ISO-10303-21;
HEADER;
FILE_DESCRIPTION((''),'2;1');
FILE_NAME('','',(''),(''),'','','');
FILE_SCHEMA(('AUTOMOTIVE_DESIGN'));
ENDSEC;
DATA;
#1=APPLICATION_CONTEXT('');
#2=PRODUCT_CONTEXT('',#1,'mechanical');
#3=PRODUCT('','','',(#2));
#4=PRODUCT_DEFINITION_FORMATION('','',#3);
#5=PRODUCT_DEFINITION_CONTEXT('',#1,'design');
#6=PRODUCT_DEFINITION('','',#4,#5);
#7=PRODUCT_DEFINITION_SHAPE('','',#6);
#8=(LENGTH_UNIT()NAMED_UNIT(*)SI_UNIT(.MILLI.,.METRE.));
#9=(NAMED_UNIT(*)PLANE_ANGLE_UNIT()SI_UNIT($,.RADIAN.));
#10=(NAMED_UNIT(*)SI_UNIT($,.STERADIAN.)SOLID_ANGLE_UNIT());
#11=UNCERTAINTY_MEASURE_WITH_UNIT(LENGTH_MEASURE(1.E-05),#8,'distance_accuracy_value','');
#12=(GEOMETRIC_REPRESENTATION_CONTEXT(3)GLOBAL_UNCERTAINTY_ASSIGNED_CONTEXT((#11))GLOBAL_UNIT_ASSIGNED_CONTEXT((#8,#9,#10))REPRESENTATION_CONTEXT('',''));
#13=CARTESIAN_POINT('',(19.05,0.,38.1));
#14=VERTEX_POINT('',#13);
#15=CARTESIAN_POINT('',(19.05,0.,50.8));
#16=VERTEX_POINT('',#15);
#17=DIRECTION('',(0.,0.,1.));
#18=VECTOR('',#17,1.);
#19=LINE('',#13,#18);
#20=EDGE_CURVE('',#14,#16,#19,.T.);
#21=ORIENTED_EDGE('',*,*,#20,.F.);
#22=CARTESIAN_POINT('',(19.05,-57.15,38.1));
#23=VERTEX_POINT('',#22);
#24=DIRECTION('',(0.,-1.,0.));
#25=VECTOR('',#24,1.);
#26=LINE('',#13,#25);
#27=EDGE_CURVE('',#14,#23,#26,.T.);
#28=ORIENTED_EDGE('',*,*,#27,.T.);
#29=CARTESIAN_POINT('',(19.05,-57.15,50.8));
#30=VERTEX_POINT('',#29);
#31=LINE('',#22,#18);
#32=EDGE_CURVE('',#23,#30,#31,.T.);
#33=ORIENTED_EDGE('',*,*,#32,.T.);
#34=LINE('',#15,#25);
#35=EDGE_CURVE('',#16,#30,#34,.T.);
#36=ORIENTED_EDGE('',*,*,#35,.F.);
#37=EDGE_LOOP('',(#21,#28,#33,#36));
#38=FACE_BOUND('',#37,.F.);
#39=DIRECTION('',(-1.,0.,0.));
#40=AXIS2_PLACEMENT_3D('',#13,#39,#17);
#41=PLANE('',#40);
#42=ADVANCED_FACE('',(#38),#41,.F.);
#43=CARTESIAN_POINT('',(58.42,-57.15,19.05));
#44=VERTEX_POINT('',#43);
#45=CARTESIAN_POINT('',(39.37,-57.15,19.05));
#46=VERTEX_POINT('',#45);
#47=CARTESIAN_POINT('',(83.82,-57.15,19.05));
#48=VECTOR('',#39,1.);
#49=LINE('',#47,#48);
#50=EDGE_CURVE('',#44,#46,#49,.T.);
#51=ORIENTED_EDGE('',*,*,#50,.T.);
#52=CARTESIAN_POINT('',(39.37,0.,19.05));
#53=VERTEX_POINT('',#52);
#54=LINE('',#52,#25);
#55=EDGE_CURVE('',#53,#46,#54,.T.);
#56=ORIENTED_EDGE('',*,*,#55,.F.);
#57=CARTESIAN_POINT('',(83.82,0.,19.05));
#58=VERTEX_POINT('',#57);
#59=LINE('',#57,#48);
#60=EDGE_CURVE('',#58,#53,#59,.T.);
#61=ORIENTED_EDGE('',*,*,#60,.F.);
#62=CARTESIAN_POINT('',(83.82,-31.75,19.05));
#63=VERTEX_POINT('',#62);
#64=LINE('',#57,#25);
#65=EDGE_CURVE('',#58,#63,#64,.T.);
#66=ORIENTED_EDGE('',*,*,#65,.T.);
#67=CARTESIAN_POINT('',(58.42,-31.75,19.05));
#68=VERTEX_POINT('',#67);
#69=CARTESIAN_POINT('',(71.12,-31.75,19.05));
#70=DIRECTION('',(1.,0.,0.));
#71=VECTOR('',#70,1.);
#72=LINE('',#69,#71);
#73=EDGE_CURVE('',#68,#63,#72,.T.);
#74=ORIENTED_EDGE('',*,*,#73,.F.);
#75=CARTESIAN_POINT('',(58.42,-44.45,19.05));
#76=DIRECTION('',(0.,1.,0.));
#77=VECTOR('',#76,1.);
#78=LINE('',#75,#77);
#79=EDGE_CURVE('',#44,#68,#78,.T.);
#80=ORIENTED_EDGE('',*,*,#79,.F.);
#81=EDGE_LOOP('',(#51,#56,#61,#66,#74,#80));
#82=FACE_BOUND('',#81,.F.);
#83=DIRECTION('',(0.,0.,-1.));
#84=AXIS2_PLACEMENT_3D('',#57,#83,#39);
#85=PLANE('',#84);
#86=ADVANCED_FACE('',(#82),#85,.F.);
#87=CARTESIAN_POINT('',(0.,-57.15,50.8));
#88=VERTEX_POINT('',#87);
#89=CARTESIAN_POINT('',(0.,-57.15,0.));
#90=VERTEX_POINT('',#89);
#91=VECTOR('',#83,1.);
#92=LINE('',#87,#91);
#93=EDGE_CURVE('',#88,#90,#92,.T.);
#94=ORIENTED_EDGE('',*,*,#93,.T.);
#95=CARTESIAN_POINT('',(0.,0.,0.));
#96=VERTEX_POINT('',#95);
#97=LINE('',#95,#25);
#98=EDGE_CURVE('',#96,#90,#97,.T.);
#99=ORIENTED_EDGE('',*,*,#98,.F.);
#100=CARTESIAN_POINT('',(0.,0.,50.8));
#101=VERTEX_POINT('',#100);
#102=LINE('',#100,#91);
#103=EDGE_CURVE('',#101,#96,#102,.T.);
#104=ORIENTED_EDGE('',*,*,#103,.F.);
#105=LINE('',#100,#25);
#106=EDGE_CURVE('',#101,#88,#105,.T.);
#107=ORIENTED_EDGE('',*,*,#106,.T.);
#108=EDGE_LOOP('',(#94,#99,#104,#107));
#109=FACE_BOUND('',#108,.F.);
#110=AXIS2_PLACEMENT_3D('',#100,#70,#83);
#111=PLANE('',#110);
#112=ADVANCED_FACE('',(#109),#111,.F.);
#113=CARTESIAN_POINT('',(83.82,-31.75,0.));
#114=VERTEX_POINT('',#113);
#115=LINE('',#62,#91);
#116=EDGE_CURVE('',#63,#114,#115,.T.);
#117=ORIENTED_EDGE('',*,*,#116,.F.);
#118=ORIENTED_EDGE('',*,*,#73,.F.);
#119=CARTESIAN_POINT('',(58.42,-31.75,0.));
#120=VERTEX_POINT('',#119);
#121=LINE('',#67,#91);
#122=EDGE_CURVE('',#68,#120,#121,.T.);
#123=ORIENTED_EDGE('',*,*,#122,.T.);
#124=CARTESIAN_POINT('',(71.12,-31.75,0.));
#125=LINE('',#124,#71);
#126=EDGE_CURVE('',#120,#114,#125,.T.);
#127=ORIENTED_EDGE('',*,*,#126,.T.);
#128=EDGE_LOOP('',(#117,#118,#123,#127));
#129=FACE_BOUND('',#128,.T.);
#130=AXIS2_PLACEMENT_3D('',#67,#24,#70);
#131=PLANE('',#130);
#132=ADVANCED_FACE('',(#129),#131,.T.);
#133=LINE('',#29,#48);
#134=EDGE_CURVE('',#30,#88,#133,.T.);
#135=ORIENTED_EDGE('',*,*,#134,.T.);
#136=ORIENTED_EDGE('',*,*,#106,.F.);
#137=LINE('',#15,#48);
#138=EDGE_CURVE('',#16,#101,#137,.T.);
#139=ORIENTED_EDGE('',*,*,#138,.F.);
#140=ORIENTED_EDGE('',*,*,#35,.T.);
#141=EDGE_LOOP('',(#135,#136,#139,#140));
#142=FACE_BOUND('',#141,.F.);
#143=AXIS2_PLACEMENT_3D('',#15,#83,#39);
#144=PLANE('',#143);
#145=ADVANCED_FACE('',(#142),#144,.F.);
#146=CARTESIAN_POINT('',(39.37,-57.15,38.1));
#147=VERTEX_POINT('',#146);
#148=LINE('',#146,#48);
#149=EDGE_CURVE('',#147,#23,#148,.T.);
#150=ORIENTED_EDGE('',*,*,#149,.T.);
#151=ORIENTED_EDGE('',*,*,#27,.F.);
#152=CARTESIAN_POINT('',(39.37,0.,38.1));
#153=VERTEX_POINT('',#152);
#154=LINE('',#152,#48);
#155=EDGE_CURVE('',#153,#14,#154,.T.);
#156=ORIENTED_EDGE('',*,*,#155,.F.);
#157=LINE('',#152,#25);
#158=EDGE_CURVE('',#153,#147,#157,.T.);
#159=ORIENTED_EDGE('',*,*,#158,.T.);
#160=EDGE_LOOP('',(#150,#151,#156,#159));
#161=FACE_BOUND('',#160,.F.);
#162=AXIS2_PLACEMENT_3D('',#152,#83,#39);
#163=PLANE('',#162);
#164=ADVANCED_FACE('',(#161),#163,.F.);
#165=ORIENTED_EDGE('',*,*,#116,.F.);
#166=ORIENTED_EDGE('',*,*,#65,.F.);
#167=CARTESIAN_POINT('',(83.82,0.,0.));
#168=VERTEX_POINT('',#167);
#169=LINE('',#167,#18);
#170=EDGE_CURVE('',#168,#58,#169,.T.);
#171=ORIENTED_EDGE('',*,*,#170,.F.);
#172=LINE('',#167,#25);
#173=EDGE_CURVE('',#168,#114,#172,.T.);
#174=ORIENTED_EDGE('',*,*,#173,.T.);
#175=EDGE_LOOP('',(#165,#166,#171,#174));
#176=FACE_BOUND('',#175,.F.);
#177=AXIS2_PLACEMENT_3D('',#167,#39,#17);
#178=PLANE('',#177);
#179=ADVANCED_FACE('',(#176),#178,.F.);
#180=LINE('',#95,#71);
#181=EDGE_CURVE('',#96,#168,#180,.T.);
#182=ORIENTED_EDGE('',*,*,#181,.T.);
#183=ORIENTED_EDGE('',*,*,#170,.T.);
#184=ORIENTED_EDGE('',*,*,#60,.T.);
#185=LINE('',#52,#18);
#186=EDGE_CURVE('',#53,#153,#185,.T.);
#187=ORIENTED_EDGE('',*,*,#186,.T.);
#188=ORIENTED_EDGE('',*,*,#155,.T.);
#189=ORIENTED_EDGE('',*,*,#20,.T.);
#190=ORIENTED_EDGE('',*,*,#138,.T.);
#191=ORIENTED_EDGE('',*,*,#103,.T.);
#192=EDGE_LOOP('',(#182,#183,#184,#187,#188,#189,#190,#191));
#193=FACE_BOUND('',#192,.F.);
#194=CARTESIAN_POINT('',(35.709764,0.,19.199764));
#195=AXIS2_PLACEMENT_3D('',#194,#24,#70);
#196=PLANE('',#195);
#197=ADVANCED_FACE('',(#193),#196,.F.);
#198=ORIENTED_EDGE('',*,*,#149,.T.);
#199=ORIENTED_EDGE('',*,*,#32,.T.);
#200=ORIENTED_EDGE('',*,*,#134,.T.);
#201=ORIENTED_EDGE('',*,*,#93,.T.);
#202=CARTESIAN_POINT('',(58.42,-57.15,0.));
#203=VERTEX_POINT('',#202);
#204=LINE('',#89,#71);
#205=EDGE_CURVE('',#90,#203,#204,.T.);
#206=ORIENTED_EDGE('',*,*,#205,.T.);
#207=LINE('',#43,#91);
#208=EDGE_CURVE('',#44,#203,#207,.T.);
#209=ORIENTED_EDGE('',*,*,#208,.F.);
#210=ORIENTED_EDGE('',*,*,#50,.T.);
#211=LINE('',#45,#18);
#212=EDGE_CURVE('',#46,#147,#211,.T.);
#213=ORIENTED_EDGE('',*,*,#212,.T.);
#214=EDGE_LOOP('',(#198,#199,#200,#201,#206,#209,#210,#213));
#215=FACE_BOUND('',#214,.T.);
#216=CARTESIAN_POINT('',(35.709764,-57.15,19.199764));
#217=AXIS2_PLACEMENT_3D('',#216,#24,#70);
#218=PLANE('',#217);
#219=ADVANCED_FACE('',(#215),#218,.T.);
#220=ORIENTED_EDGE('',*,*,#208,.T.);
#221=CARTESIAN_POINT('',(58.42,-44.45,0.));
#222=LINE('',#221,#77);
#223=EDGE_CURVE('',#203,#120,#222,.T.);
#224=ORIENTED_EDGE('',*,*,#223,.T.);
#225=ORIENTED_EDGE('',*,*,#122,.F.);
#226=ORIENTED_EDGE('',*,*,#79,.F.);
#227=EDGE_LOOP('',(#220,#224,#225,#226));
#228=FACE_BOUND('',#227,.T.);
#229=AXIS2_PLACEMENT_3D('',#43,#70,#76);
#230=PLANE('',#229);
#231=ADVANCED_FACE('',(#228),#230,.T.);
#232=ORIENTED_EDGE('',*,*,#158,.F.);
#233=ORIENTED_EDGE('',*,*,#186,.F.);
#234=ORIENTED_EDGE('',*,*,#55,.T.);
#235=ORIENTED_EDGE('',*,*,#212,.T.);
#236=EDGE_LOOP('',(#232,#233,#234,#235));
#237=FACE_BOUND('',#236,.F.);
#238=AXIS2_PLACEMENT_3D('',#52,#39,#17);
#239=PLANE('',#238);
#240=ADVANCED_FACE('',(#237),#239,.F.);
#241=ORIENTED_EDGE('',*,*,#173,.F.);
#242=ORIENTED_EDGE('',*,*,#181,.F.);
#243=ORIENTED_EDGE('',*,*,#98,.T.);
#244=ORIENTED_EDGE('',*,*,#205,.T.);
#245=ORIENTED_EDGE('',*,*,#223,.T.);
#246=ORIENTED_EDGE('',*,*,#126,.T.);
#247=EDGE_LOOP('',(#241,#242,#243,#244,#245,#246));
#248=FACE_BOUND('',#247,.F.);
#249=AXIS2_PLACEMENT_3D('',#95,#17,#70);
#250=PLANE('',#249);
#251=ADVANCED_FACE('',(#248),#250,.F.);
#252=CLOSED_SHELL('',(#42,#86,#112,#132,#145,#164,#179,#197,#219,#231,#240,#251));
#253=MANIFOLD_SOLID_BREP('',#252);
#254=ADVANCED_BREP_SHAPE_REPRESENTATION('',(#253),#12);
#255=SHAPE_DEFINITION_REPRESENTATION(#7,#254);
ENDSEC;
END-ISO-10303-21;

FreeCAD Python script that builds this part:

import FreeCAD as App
import Part
import Sketcher

V = App.Vector
Q = App.Units.Quantity


def add_polygon(sketch, points):
    """Adds a closed chain of lines whose ends are joined by coincident constraints."""
    first, n = sketch.GeometryCount, len(points)
    for a, b in zip(points, points[1:] + points[:1]):
        sketch.addGeometry(Part.LineSegment(App.Vector(*a, 0), App.Vector(*b, 0)), False)
    for i in range(n):
        sketch.addConstraint(Sketcher.Constraint("Coincident", first + i, 2, first + (i + 1) % n, 1))

doc = App.newDocument("Part")
body = doc.addObject("PartDesign::Body", "Body")

# Sketch on XZ plane
sketch1 = body.newObject("Sketcher::SketchObject", "Sketch")
sketch1.AttachmentSupport = (doc.getObject("XZ_Plane"), [""])
sketch1.MapMode = "FlatFace"
add_polygon(sketch1, [(0, 51), (0, 0), (84, 0), (84, 19), (39, 19), (39, 38), (19, 38), (19, 51)])  # lines 0-7
sketch1.addConstraint([
    Sketcher.Constraint("Vertical", 0),
    Sketcher.Constraint("Horizontal", 1),
    Sketcher.Constraint("Vertical", 2),
    Sketcher.Constraint("Horizontal", 3),
    Sketcher.Constraint("Vertical", 4),
    Sketcher.Constraint("Horizontal", 5),
    Sketcher.Constraint("Vertical", 6),
    Sketcher.Constraint("Horizontal", 7),
    Sketcher.Constraint("Coincident", 0, 2, -1, 1),
    Sketcher.Constraint("Equal", 7, 2),
    Sketcher.Constraint("Equal", 2, 4),
    Sketcher.Constraint("DistanceY", 0, 2, 0, 1, Q("2 in")),
    Sketcher.Constraint("DistanceX", 1, 1, 1, 2, Q("3.3 in")),
    Sketcher.Constraint("DistanceX", 5, 2, 5, 1, Q("0.8 in")),
    Sketcher.Constraint("DistanceY", 6, 1, 6, 2, Q("0.5 in")),
])
pad1 = body.newObject("PartDesign::Pad", "Pad")
pad1.Profile = sketch1
pad1.Length = Q("2.25 in")

# Sketch on XY plane
sketch2 = body.newObject("Sketcher::SketchObject", "Sketch001")
sketch2.AttachmentSupport = (doc.getObject("XY_Plane"), [""])
sketch2.MapMode = "FlatFace"
sketch2.AttachmentOffset = App.Placement(V(0, 0, 0.75 * 25.4), App.Rotation())
add_polygon(sketch2, [(58, -32), (58, -57), (84, -57), (84, -32)])  # lines 0-3
sketch2.addConstraint([
    Sketcher.Constraint("Vertical", 0),
    Sketcher.Constraint("Horizontal", 1),
    Sketcher.Constraint("Vertical", 2),
    Sketcher.Constraint("Horizontal", 3),
    Sketcher.Constraint("Equal", 3, 0),
    Sketcher.Constraint("DistanceX", 1, 1, 1, 2, Q("1 in")),
    Sketcher.Constraint("DistanceX", -1, 1, 0, 2, Q("2.3 in")),
    Sketcher.Constraint("DistanceY", 0, 2, -1, 1, Q("2.25 in")),
])
pocket1 = body.newObject("PartDesign::Pocket", "Pocket")
pocket1.Profile = sketch2
pocket1.Type = "ThroughAll"

doc.recompute()
